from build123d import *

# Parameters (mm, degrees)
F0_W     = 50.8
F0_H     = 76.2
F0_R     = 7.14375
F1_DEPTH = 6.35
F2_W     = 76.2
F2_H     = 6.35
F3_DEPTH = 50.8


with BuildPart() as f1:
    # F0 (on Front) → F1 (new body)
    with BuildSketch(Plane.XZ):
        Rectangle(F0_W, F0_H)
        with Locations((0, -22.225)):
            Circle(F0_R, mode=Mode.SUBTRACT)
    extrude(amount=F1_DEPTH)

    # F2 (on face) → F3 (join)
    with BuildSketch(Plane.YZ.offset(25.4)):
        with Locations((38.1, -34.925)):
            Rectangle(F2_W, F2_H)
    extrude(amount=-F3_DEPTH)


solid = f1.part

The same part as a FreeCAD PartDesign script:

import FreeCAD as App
import Part
import Sketcher
from FreeCAD import Vector
Q = App.Units.Quantity


def add_polygon(sketch, points):
    """Adds a closed chain of lines whose ends are joined by coincident constraints."""
    first, n = sketch.GeometryCount, len(points)
    for a, b in zip(points, points[1:] + points[:1]):
        sketch.addGeometry(Part.LineSegment(App.Vector(*a, 0), App.Vector(*b, 0)), False)
    for i in range(n):
        sketch.addConstraint(Sketcher.Constraint("Coincident", first + i, 2, first + (i + 1) % n, 1))

doc = App.newDocument("Part")
body = doc.addObject("PartDesign::Body", "Body")

# Sketch on XZ plane
sketch1 = body.newObject("Sketcher::SketchObject", "Sketch")
sketch1.AttachmentSupport = (doc.getObject("XZ_Plane"), [""])
sketch1.MapMode = "FlatFace"
add_polygon(sketch1, [(-25, 38), (-25, -38), (25, -38), (25, 38)])  # lines 0-3
sketch1.addGeometry(Part.Circle(Vector(0, -22, 0), Vector(0, 0, 1), 7), False)  # 4
sketch1.addConstraint([
    Sketcher.Constraint("Vertical", 0),
    Sketcher.Constraint("Horizontal", 1),
    Sketcher.Constraint("Vertical", 2),
    Sketcher.Constraint("Horizontal", 3),
    Sketcher.Constraint("Symmetric", 0, 2, 2, 2, -1, 1),
    Sketcher.Constraint("PointOnObject", 4, 3, -2),
    Sketcher.Constraint("DistanceX", 1, 1, 1, 2, Q("2 in")),
    Sketcher.Constraint("DistanceY", 0, 2, 0, 1, Q("3 in")),
    Sketcher.Constraint("Diameter", 4, Q("0.5625 in")),
    Sketcher.Constraint("DistanceY", 4, 3, -1, 1, Q("0.875 in")),
])
pad1 = body.newObject("PartDesign::Pad", "Pad")
pad1.Profile = sketch1
pad1.Length = Q("0.25 in")

# Sketch on YZ plane
sketch2 = body.newObject("Sketcher::SketchObject", "Sketch001")
sketch2.AttachmentSupport = (doc.getObject("YZ_Plane"), [""])
sketch2.MapMode = "FlatFace"
sketch2.AttachmentOffset = App.Placement(Vector(0, 0, 1 * 25.4), App.Rotation())
add_polygon(sketch2, [(0, -32), (0, -38), (76, -38), (76, -32)])  # lines 0-3
sketch2.addConstraint([
    Sketcher.Constraint("Vertical", 0),
    Sketcher.Constraint("Horizontal", 1),
    Sketcher.Constraint("Vertical", 2),
    Sketcher.Constraint("Horizontal", 3),
    Sketcher.Constraint("PointOnObject", 0, 2, -2),
    Sketcher.Constraint("DistanceX", 1, 1, 1, 2, Q("3 in")),
    Sketcher.Constraint("DistanceY", 0, 2, 0, 1, Q("0.25 in")),
    Sketcher.Constraint("DistanceY", 0, 2, -1, 1, Q("1.5 in")),
])
pad2 = body.newObject("PartDesign::Pad", "Pad001")
pad2.Profile = sketch2
pad2.Length = Q("2 in")
pad2.Reversed = True

doc.recompute()
